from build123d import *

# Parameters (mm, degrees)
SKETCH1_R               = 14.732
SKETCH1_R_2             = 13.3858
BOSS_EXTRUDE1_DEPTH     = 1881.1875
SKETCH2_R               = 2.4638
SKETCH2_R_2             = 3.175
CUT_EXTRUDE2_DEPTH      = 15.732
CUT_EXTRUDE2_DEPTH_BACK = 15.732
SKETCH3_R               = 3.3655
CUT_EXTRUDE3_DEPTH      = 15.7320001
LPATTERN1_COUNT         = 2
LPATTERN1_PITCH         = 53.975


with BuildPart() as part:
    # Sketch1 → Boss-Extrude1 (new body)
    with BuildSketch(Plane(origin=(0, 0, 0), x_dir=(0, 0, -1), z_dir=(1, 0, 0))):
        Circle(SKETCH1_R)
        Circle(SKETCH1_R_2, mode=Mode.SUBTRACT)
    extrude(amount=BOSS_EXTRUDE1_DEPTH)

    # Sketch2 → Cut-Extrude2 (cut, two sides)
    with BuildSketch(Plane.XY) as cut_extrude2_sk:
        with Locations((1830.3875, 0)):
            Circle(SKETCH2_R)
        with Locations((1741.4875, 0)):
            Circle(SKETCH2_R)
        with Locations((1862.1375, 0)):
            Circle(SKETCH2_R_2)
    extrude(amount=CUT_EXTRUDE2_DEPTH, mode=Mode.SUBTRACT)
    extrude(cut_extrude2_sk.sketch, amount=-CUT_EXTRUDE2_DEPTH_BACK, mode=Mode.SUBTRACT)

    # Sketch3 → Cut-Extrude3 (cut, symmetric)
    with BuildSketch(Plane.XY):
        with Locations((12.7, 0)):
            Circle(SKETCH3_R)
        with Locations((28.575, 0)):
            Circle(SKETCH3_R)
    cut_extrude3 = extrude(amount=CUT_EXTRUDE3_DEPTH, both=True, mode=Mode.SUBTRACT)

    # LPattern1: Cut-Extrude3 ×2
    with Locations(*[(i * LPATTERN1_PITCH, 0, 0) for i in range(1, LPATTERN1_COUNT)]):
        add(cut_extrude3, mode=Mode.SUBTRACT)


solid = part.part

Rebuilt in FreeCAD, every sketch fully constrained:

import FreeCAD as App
import Part
import Sketcher

V = App.Vector
Q = App.Units.Quantity

doc = App.newDocument("Part")
body = doc.addObject("PartDesign::Body", "Body")

# Sketch on YZ plane
sketch1 = body.newObject("Sketcher::SketchObject", "Sketch")
sketch1.AttachmentSupport = (doc.getObject("YZ_Plane"), [""])
sketch1.MapMode = "FlatFace"
sketch1.addGeometry([
    Part.Circle(V(0, 0, 0), V(0, 0, 1), 15),
    Part.Circle(V(0, 0, 0), V(0, 0, 1), 13),
], False)
sketch1.addConstraint([
    Sketcher.Constraint("Coincident", 0, 3, -1, 1),
    Sketcher.Constraint("Coincident", 1, 3, -1, 1),
    Sketcher.Constraint("Diameter", 0, Q("1.16 in")),
    Sketcher.Constraint("Diameter", 1, Q("1.054 in")),
])
pad1 = body.newObject("PartDesign::Pad", "Pad")
pad1.Profile = sketch1
pad1.Length = Q("74.0625 in")

# Sketch on XY plane
sketch2 = body.newObject("Sketcher::SketchObject", "Sketch001")
sketch2.AttachmentSupport = (doc.getObject("XY_Plane"), [""])
sketch2.MapMode = "FlatFace"
sketch2.addGeometry([
    Part.Circle(V(1830.4, 0, 0), V(0, 0, 1), 2.5),
    Part.Circle(V(1741.5, 0, 0), V(0, 0, 1), 2.5),
    Part.Circle(V(1862.1, 0, 0), V(0, 0, 1), 3.2),
], False)
sketch2.addConstraint([
    Sketcher.Constraint("Equal", 0, 1),
    Sketcher.Constraint("PointOnObject", 0, 3, -1),
    Sketcher.Constraint("PointOnObject", 1, 3, -1),
    Sketcher.Constraint("PointOnObject", 2, 3, -1),
    Sketcher.Constraint("Diameter", 2, Q("0.25 in")),
    Sketcher.Constraint("Diameter", 0, Q("0.194 in")),
    Sketcher.Constraint("DistanceX", 1, 3, 0, 3, Q("3.5 in")),
    Sketcher.Constraint("DistanceX", 0, 3, 2, 3, Q("1.25 in")),
    Sketcher.Constraint("DistanceX", -1, 1, 0, 3, Q("72.0625 in")),
])
pocket1 = body.newObject("PartDesign::Pocket", "Pocket")
pocket1.Profile = sketch2
pocket1.Type = "ThroughAll"
pocket1.Midplane = True

# Sketch on XY plane
sketch3 = body.newObject("Sketcher::SketchObject", "Sketch002")
sketch3.AttachmentSupport = (doc.getObject("XY_Plane"), [""])
sketch3.MapMode = "FlatFace"
sketch3.addGeometry([
    Part.Circle(V(12.7, 0, 0), V(0, 0, 1), 3.4),
    Part.Circle(V(28.6, 0, 0), V(0, 0, 1), 3.4),
], False)
sketch3.addConstraint([
    Sketcher.Constraint("Equal", 0, 1),
    Sketcher.Constraint("PointOnObject", 0, 3, -1),
    Sketcher.Constraint("PointOnObject", 1, 3, -1),
    Sketcher.Constraint("Diameter", 0, Q("0.265 in")),
    Sketcher.Constraint("DistanceX", -1, 1, 0, 3, Q("0.5 in")),
    Sketcher.Constraint("DistanceX", -1, 1, 1, 3, Q("1.125 in")),
])
pocket2 = body.newObject("PartDesign::Pocket", "Pocket001")
pocket2.Profile = sketch3
pocket2.Length = 31.464
pocket2.Midplane = True
doc.recompute()

linearpattern = body.newObject("PartDesign::LinearPattern", "LinearPattern")
linearpattern.Originals = [pocket2]
linearpattern.Direction = (doc.getObject("X_Axis"), [""])
linearpattern.Mode = "offset"
linearpattern.Offset = Q("2.125 in")
linearpattern.Occurrences = 2
body.Tip = linearpattern

doc.recompute()
